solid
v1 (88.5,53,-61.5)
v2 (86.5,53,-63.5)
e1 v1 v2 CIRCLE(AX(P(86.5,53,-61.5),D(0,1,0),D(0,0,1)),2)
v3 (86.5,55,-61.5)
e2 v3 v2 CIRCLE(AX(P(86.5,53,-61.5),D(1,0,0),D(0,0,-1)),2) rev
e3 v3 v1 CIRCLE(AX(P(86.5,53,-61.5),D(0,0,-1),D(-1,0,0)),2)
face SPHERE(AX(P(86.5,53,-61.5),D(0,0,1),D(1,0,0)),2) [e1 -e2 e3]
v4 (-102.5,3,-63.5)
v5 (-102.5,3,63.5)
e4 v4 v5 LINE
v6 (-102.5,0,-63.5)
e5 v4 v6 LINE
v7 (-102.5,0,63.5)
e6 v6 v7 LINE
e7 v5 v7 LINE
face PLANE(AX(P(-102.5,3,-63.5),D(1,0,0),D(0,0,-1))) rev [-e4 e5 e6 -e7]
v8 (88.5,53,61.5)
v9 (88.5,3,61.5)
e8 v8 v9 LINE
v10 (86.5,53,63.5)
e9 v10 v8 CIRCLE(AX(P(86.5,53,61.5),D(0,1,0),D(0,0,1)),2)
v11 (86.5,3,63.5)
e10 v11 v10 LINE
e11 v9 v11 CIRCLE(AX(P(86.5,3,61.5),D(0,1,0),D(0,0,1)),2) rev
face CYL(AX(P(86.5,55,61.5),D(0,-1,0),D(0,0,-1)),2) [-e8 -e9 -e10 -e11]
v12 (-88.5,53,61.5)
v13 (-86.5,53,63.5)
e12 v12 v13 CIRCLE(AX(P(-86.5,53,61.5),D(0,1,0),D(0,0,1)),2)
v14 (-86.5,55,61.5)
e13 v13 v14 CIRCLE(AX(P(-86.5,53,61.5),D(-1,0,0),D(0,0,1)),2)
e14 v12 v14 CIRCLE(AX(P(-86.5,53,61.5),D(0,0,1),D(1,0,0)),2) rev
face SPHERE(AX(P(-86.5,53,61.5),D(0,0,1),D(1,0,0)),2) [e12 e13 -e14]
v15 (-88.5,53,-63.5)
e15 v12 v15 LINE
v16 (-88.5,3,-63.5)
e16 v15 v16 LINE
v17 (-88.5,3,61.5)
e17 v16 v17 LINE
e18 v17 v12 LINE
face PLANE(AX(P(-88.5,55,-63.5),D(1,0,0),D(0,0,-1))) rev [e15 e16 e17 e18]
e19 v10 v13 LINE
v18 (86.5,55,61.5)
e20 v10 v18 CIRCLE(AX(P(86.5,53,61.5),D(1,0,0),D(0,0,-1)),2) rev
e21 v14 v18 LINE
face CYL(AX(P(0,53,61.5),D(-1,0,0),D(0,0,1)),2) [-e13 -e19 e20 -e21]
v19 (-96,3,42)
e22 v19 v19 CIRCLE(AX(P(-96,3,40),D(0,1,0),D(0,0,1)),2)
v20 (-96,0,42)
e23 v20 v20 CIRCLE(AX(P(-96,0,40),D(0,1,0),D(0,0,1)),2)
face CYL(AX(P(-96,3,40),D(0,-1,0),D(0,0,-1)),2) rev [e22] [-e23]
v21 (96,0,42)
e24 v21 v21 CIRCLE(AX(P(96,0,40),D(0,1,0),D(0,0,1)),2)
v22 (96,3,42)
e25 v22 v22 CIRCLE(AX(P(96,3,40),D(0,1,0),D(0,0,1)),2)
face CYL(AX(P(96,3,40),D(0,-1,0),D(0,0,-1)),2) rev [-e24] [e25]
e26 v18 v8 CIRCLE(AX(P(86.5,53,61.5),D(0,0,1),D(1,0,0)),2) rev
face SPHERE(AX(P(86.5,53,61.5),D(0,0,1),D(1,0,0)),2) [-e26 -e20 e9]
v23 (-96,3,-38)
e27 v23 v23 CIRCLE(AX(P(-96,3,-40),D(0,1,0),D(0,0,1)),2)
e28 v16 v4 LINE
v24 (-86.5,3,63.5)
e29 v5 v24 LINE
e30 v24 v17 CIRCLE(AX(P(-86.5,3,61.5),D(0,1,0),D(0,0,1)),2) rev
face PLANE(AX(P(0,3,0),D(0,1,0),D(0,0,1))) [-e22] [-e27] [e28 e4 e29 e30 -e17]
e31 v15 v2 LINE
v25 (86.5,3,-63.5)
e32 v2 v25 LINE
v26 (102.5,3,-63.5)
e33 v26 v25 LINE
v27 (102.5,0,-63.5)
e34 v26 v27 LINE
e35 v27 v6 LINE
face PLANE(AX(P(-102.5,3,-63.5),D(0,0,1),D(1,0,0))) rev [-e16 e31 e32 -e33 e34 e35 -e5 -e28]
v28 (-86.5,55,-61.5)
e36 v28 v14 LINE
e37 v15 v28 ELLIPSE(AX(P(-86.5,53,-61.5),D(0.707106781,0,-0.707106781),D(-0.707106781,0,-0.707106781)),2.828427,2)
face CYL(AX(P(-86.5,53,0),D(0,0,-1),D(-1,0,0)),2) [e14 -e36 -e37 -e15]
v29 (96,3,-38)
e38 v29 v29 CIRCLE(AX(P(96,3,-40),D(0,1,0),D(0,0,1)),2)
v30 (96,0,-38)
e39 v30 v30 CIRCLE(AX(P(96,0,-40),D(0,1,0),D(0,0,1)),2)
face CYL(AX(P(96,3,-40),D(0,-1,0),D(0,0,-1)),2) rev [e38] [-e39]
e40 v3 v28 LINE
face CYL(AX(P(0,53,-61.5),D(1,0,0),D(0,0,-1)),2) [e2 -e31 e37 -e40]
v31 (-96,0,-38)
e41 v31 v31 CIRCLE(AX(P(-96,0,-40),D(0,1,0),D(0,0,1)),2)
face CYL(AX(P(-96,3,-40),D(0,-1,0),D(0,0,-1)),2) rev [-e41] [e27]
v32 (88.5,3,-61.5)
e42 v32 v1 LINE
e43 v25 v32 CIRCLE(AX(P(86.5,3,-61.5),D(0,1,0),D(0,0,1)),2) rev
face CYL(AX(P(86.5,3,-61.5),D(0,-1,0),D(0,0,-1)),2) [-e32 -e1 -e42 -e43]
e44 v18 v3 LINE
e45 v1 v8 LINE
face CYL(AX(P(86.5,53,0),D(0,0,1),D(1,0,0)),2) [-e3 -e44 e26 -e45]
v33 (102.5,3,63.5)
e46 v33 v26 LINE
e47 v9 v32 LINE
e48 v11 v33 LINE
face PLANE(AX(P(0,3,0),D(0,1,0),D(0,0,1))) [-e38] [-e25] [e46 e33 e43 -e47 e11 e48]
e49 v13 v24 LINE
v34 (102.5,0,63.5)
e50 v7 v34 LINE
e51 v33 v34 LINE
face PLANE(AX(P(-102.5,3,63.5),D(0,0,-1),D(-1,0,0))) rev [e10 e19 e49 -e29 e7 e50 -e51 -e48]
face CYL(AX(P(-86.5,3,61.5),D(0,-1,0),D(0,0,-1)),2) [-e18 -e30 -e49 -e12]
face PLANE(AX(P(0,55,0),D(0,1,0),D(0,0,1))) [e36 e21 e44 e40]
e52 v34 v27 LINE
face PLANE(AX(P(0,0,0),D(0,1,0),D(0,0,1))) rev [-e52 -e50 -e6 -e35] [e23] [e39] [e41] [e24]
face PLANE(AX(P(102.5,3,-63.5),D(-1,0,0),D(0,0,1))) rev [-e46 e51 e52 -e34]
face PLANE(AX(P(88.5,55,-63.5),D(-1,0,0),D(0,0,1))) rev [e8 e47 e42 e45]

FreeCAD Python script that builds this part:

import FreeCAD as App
import Part
import Sketcher

V = App.Vector


def edges_at(feature, points):
    """Names of the edges that pass closest to the given points."""
    edges = feature.Shape.Edges
    near = lambda p: min(range(len(edges)), key=lambda i: edges[i].distToShape(Part.Vertex(*p))[0])
    return sorted({f"Edge{near(p) + 1}" for p in points})

doc = App.newDocument("Part")
params = doc.addObject("Spreadsheet::Sheet", "Params")
for row, (alias, value) in enumerate([
    ("sketch1_diameter", "4 mm"),
    ("sketch1_width", "205 mm"),
    ("sketch1_height", "127 mm"),
    ("pad1_length", "3 mm"),
    ("sketch2_width", "177 mm"),
    ("sketch2_height", "127 mm"),
    ("pad2_length", "52 mm"),
    ("fillet_radius", "2 mm"),
], start=1):
    params.set(f"A{row}", alias)
    params.set(f"B{row}", "=" + value)
    params.setAlias(f"B{row}", alias)

body = doc.addObject("PartDesign::Body", "Body")

# Sketch on XZ plane
sketch1 = body.newObject("Sketcher::SketchObject", "Sketch")
sketch1.AttachmentSupport = (doc.getObject("XZ_Plane"), [""])
sketch1.MapMode = "FlatFace"
sketch1.addGeometry([
    Part.LineSegment(V(-102.5, -63.5, 0), V(-102.5, 63.5, 0)),  # 0
    Part.LineSegment(V(-102.5, 63.5, 0), V(102.5, 63.5, 0)),  # 1
    Part.LineSegment(V(102.5, 63.5, 0), V(102.5, -63.5, 0)),  # 2
    Part.LineSegment(V(102.5, -63.5, 0), V(-102.5, -63.5, 0)),  # 3
    Part.Circle(V(-96, 40, 0), V(0, 0, 1), 2),  # 4
    Part.Circle(V(96, 40, 0), V(0, 0, 1), 2),  # 5
    Part.Circle(V(-96, -40, 0), V(0, 0, 1), 2),  # 6
    Part.Circle(V(96, -40, 0), V(0, 0, 1), 2),  # 7
], False)
sketch1.addConstraint([
    Sketcher.Constraint("Coincident", 0, 2, 1, 1),
    Sketcher.Constraint("Coincident", 1, 2, 2, 1),
    Sketcher.Constraint("Coincident", 2, 2, 3, 1),
    Sketcher.Constraint("Coincident", 3, 2, 0, 1),
    Sketcher.Constraint("Vertical", 0),
    Sketcher.Constraint("Horizontal", 1),
    Sketcher.Constraint("Vertical", 2),
    Sketcher.Constraint("Horizontal", 3),
    Sketcher.Constraint("Equal", 4, 5),
    Sketcher.Constraint("Equal", 5, 6),
    Sketcher.Constraint("Equal", 6, 7),
    Sketcher.Constraint("Symmetric", 5, 3, 6, 3, -1, 1),
    Sketcher.Constraint("Symmetric", 4, 3, 7, 3, -1, 1),
    Sketcher.Constraint("Symmetric", 0, 2, 2, 2, -1, 1),
    Sketcher.Constraint("Symmetric", 4, 3, 5, 3, -2),
    Sketcher.Constraint("Diameter", 4, 4.0),
    Sketcher.Constraint("DistanceX", 1, 1, 1, 2, 205.0),
    Sketcher.Constraint("DistanceY", 0, 1, 0, 2, 127.0),
    Sketcher.Constraint("DistanceX", 4, 3, -1, 1, 96.0),
    Sketcher.Constraint("DistanceY", -1, 1, 4, 3, 40.0),
])
sketch1.setExpression("Constraints[15]", "Params.sketch1_diameter")
sketch1.setExpression("Constraints[16]", "Params.sketch1_width")
sketch1.setExpression("Constraints[17]", "Params.sketch1_height")
pad1 = body.newObject("PartDesign::Pad", "Pad")
pad1.Profile = sketch1
pad1.setExpression("Length", "Params.pad1_length")
pad1.Reversed = True

# Sketch on XZ plane
sketch2 = body.newObject("Sketcher::SketchObject", "Sketch001")
sketch2.AttachmentSupport = (doc.getObject("XZ_Plane"), [""])
sketch2.MapMode = "FlatFace"
sketch2.AttachmentOffset = App.Placement(V(0, 0, -3), App.Rotation())
sketch2.addGeometry([
    Part.LineSegment(V(-88, -64, 0), V(-88, 64, 0)),
    Part.LineSegment(V(-88, 64, 0), V(88, 64, 0)),
    Part.LineSegment(V(88, 64, 0), V(88, -64, 0)),
    Part.LineSegment(V(88, -64, 0), V(-88, -64, 0)),
], False)
sketch2.addConstraint([
    Sketcher.Constraint("Coincident", 0, 2, 1, 1),
    Sketcher.Constraint("Coincident", 1, 2, 2, 1),
    Sketcher.Constraint("Coincident", 2, 2, 3, 1),
    Sketcher.Constraint("Coincident", 3, 2, 0, 1),
    Sketcher.Constraint("Vertical", 0),
    Sketcher.Constraint("Horizontal", 1),
    Sketcher.Constraint("Vertical", 2),
    Sketcher.Constraint("Horizontal", 3),
    Sketcher.Constraint("Symmetric", 0, 2, 2, 2, -1, 1),
    Sketcher.Constraint("DistanceX", 1, 1, 1, 2, 177.0),
    Sketcher.Constraint("DistanceY", 0, 1, 0, 2, 127.0),
])
sketch2.setExpression("Constraints[9]", "Params.sketch2_width")
sketch2.setExpression("Constraints[10]", "Params.sketch2_height")
pad2 = body.newObject("PartDesign::Pad", "Pad001")
pad2.Profile = sketch2
pad2.setExpression("Length", "Params.pad2_length")
pad2.Reversed = True
doc.recompute()

fillet = body.newObject("PartDesign::Fillet", "Fillet")
fillet.Base = (pad2, edges_at(pad2, [
    (-88.5, 29, 63.5),
    (88.5, 29, 63.5),
    (88.5, 29, -63.5),
    (-88.5, 55, 0),
    (0, 55, 63.5),
    (88.5, 55, 0),
    (0, 55, -63.5),
]))
fillet.setExpression("Radius", "Params.fillet_radius")

doc.recompute()
